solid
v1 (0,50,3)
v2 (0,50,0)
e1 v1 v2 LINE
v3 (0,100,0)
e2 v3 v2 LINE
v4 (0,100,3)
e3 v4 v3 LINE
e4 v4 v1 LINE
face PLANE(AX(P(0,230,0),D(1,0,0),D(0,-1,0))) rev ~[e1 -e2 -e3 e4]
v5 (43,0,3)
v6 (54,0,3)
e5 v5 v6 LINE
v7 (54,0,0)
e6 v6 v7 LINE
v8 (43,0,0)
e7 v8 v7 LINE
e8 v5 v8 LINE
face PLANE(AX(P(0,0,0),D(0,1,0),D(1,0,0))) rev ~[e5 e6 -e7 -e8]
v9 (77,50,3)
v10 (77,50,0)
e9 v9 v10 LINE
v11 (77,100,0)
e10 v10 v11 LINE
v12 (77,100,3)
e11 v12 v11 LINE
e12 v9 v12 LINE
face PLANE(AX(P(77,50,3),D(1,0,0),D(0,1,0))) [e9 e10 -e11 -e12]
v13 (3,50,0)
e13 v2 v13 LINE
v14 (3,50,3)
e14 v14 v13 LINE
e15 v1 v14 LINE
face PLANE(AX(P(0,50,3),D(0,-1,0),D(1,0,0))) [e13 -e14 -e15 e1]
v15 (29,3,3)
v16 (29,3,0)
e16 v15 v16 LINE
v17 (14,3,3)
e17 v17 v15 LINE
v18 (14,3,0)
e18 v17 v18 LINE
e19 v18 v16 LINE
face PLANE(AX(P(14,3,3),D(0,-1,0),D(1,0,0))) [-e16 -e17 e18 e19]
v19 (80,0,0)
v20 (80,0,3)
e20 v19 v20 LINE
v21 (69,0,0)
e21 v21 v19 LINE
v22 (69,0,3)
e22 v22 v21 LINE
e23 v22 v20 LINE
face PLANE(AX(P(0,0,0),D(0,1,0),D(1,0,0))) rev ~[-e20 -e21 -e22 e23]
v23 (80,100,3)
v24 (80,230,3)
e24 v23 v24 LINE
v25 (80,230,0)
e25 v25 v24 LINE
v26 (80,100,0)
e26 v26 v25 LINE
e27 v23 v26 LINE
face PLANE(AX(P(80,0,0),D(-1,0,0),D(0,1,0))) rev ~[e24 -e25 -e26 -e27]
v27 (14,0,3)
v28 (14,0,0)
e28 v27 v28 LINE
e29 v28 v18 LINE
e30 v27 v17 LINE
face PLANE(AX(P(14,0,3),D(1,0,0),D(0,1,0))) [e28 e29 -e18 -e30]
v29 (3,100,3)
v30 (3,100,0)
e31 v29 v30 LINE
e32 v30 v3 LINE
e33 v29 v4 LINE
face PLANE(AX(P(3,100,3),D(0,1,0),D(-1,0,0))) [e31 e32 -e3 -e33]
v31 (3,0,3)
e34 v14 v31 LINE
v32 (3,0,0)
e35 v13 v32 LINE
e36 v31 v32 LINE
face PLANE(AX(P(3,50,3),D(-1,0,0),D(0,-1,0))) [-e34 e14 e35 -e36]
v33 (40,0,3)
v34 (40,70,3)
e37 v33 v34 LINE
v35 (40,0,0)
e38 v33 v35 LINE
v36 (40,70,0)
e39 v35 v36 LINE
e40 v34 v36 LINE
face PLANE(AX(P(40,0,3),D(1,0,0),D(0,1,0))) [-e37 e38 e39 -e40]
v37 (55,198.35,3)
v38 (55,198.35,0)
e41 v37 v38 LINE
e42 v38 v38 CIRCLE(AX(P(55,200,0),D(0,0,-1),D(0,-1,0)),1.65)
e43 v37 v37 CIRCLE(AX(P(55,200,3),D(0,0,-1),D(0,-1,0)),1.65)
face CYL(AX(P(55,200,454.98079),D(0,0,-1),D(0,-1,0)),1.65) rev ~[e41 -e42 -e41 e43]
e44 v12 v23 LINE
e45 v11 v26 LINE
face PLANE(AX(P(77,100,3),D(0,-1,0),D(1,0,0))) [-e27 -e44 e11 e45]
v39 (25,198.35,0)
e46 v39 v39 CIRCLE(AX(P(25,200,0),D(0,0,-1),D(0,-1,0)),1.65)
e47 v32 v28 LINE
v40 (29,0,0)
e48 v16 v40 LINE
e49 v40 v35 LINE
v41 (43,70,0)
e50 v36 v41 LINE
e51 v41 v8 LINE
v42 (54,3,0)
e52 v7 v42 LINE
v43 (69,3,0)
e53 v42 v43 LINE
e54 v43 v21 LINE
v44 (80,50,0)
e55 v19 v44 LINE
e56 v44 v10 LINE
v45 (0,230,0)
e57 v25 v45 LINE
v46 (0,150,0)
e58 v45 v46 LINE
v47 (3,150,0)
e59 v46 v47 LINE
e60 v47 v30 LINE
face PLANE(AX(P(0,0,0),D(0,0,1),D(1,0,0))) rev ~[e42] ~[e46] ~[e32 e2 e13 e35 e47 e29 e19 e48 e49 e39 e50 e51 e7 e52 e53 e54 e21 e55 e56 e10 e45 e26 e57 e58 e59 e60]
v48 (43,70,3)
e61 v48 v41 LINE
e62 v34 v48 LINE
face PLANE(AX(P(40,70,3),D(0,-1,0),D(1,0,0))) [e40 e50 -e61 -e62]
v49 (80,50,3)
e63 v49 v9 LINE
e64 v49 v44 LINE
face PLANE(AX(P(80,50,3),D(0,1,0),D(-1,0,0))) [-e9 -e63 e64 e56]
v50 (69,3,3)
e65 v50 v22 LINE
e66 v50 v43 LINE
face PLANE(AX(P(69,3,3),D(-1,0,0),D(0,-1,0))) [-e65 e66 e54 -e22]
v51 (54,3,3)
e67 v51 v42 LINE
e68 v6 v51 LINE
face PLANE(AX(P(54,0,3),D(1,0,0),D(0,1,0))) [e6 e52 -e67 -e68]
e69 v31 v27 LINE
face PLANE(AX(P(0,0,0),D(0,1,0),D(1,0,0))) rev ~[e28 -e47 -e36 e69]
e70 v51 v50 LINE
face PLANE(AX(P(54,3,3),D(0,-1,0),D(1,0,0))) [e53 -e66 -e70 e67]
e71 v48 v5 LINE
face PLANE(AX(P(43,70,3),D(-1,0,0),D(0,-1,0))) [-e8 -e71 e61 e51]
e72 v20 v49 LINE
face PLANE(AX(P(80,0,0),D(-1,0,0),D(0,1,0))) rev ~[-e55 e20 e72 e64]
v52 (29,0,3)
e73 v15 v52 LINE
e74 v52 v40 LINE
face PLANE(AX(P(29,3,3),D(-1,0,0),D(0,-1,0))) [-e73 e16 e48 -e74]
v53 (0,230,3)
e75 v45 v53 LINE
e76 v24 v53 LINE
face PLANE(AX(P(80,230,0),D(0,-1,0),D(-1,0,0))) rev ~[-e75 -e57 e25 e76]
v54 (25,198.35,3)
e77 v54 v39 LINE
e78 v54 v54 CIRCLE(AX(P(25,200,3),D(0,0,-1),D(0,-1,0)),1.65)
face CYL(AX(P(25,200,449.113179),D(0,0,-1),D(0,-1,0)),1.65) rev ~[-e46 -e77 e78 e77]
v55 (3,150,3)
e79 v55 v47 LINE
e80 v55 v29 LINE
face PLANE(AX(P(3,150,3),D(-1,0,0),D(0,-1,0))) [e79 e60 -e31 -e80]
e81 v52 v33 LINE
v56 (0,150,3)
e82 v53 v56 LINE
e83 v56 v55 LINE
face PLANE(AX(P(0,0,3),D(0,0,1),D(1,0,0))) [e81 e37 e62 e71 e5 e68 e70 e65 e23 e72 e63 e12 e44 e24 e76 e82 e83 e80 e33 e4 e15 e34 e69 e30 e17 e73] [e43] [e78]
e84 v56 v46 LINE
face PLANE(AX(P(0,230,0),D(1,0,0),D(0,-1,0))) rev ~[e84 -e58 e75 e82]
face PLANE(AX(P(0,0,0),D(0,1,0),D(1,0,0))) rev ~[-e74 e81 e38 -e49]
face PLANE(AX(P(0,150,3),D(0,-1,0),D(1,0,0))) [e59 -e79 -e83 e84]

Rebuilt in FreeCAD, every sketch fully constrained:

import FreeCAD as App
import Part
import Sketcher

V = App.Vector


def add_polygon(sketch, points):
    """Adds a closed chain of lines whose ends are joined by coincident constraints."""
    first, n = sketch.GeometryCount, len(points)
    for a, b in zip(points, points[1:] + points[:1]):
        sketch.addGeometry(Part.LineSegment(App.Vector(*a, 0), App.Vector(*b, 0)), False)
    for i in range(n):
        sketch.addConstraint(Sketcher.Constraint("Coincident", first + i, 2, first + (i + 1) % n, 1))

doc = App.newDocument("Part")
body = doc.addObject("PartDesign::Body", "Body")

# Sketch on XY plane
sketch1 = doc.addObject("Sketcher::SketchObject", "Sketch")
body.addObject(sketch1)
sketch1.AttachmentSupport = (doc.XY_Plane, [""])
sketch1.MapMode = "FlatFace"
add_polygon(sketch1, [(0, 230), (0, 0), (80, 0), (80, 230)])  # lines 0-3
sketch1.addConstraint(Sketcher.Constraint("Vertical", 0))
sketch1.addConstraint(Sketcher.Constraint("Horizontal", 1))
sketch1.addConstraint(Sketcher.Constraint("Vertical", 2))
sketch1.addConstraint(Sketcher.Constraint("Horizontal", 3))
sketch1.addConstraint(Sketcher.Constraint("Coincident", 0, 2, -1, 1))
sketch1.addConstraint(Sketcher.Constraint("DistanceX", 1, 1, 1, 2, 80.0))
sketch1.addConstraint(Sketcher.Constraint("DistanceY", 0, 2, 0, 1, 230.0))
pad1 = doc.addObject("PartDesign::Pad", "Pad")
body.addObject(pad1)
pad1.Profile = sketch1
pad1.Length = 3

# Sketch on XY plane
sketch2 = doc.addObject("Sketcher::SketchObject", "Sketch001")
body.addObject(sketch2)
sketch2.AttachmentSupport = (doc.XY_Plane, [""])
sketch2.MapMode = "FlatFace"
sketch2.AttachmentOffset = App.Placement(V(0, 0, 3), App.Rotation())
add_polygon(sketch2, [(0, 0), (3, 0), (3, 50), (0, 50)])  # lines 0-3
add_polygon(sketch2, [(80, 100), (77, 100), (77, 50), (80, 50)])  # lines 4-7
add_polygon(sketch2, [(3, 150), (0, 150), (0, 100), (3, 100)])  # lines 8-11
sketch2.addConstraint(Sketcher.Constraint("Horizontal", 0))
sketch2.addConstraint(Sketcher.Constraint("Vertical", 1))
sketch2.addConstraint(Sketcher.Constraint("Horizontal", 2))
sketch2.addConstraint(Sketcher.Constraint("Vertical", 3))
sketch2.addConstraint(Sketcher.Constraint("Horizontal", 4))
sketch2.addConstraint(Sketcher.Constraint("Vertical", 5))
sketch2.addConstraint(Sketcher.Constraint("Horizontal", 6))
sketch2.addConstraint(Sketcher.Constraint("Vertical", 7))
sketch2.addConstraint(Sketcher.Constraint("Horizontal", 8))
sketch2.addConstraint(Sketcher.Constraint("Vertical", 9))
sketch2.addConstraint(Sketcher.Constraint("Horizontal", 10))
sketch2.addConstraint(Sketcher.Constraint("Vertical", 11))
sketch2.addConstraint(Sketcher.Constraint("Coincident", 3, 2, -1, 1))
sketch2.addConstraint(Sketcher.Constraint("PointOnObject", 8, 2, -2))
sketch2.addConstraint(Sketcher.Constraint("Horizontal", 2, 2, 5, 2))
sketch2.addConstraint(Sketcher.Constraint("Horizontal", 7, 2, 9, 2))
sketch2.addConstraint(Sketcher.Constraint("Vertical", 1, 2, 10, 2))
sketch2.addConstraint(Sketcher.Constraint("Equal", 2, 4))
sketch2.addConstraint(Sketcher.Constraint("Equal", 3, 5))
sketch2.addConstraint(Sketcher.Constraint("Equal", 7, 9))
sketch2.addConstraint(Sketcher.Constraint("DistanceX", 0, 1, 0, 2, 3.0))
sketch2.addConstraint(Sketcher.Constraint("DistanceY", 1, 1, 1, 2, 50.0))
sketch2.addConstraint(Sketcher.Constraint("DistanceX", -1, 1, 4, 2, 77.0))
pocket1 = doc.addObject("PartDesign::Pocket", "Pocket")
body.addObject(pocket1)
pocket1.Profile = sketch2
pocket1.Length = 3

# Sketch on XY plane
sketch3 = doc.addObject("Sketcher::SketchObject", "Sketch002")
body.addObject(sketch3)
sketch3.AttachmentSupport = (doc.XY_Plane, [""])
sketch3.MapMode = "FlatFace"
sketch3.AttachmentOffset = App.Placement(V(0, 0, 3), App.Rotation())
add_polygon(sketch3, [(43, 70), (40, 70), (40, 0), (43, 0)])  # lines 0-3
sketch3.addConstraint(Sketcher.Constraint("Horizontal", 0))
sketch3.addConstraint(Sketcher.Constraint("Vertical", 1))
sketch3.addConstraint(Sketcher.Constraint("Horizontal", 2))
sketch3.addConstraint(Sketcher.Constraint("Vertical", 3))
sketch3.addConstraint(Sketcher.Constraint("PointOnObject", 1, 2, -1))
sketch3.addConstraint(Sketcher.Constraint("DistanceX", 0, 2, 0, 1, 3.0))
sketch3.addConstraint(Sketcher.Constraint("DistanceY", 1, 2, 1, 1, 70.0))
sketch3.addConstraint(Sketcher.Constraint("DistanceX", -1, 1, 0, 2, 40.0))
pocket2 = doc.addObject("PartDesign::Pocket", "Pocket001")
body.addObject(pocket2)
pocket2.Profile = sketch3
pocket2.Length = 10

# Sketch on XY plane
sketch4 = doc.addObject("Sketcher::SketchObject", "Sketch003")
body.addObject(sketch4)
sketch4.AttachmentSupport = (doc.XY_Plane, [""])
sketch4.MapMode = "FlatFace"
sketch4.AttachmentOffset = App.Placement(V(0, 0, 3), App.Rotation())
sketch4.addGeometry(Part.Circle(V(25, 200, 0), V(0, 0, 1), 1.6), False)
sketch4.addGeometry(Part.Circle(V(55, 200, 0), V(0, 0, 1), 1.6), False)
sketch4.addConstraint(Sketcher.Constraint("Equal", 0, 1))
sketch4.addConstraint(Sketcher.Constraint("Horizontal", 0, 3, 1, 3))
sketch4.addConstraint(Sketcher.Constraint("Diameter", 0, 3.3))
sketch4.addConstraint(Sketcher.Constraint("DistanceX", -1, 1, 0, 3, 25.0))
sketch4.addConstraint(Sketcher.Constraint("DistanceY", -1, 1, 0, 3, 200.0))
sketch4.addConstraint(Sketcher.Constraint("DistanceX", -1, 1, 1, 3, 55.0))
doc.recompute()
hole = doc.addObject("PartDesign::Hole", "Hole")
body.addObject(hole)
hole.Profile = sketch4
hole.ThreadType = "None"
hole.Diameter = 3.3
hole.DepthType = "ThroughAll"

# Sketch on XY plane
sketch5 = doc.addObject("Sketcher::SketchObject", "Sketch004")
body.addObject(sketch5)
sketch5.AttachmentSupport = (doc.XY_Plane, [""])
sketch5.MapMode = "FlatFace"
sketch5.AttachmentOffset = App.Placement(V(0, 0, 3), App.Rotation())
add_polygon(sketch5, [(29, 3), (14, 3), (14, 0), (29, 0)])  # lines 0-3
add_polygon(sketch5, [(69, 3), (54, 3), (54, 0), (69, 0)])  # lines 4-7
sketch5.addConstraint(Sketcher.Constraint("Horizontal", 0))
sketch5.addConstraint(Sketcher.Constraint("Vertical", 1))
sketch5.addConstraint(Sketcher.Constraint("Horizontal", 2))
sketch5.addConstraint(Sketcher.Constraint("Vertical", 3))
sketch5.addConstraint(Sketcher.Constraint("Horizontal", 4))
sketch5.addConstraint(Sketcher.Constraint("Vertical", 5))
sketch5.addConstraint(Sketcher.Constraint("Horizontal", 6))
sketch5.addConstraint(Sketcher.Constraint("Vertical", 7))
sketch5.addConstraint(Sketcher.Constraint("PointOnObject", 1, 2, -1))
sketch5.addConstraint(Sketcher.Constraint("PointOnObject", 5, 2, -1))
sketch5.addConstraint(Sketcher.Constraint("Horizontal", 3, 2, 4, 2))
sketch5.addConstraint(Sketcher.Constraint("Equal", 2, 4))
sketch5.addConstraint(Sketcher.Constraint("DistanceX", 0, 2, 0, 1, 15.0))
sketch5.addConstraint(Sketcher.Constraint("DistanceY", 1, 2, 1, 1, 3.0))
sketch5.addConstraint(Sketcher.Constraint("DistanceX", -1, 1, 0, 2, 14.0))
sketch5.addConstraint(Sketcher.Constraint("DistanceX", -1, 1, 4, 2, 54.0))
pocket3 = doc.addObject("PartDesign::Pocket", "Pocket002")
body.addObject(pocket3)
pocket3.Profile = sketch5
pocket3.Length = 10

doc.recompute()
